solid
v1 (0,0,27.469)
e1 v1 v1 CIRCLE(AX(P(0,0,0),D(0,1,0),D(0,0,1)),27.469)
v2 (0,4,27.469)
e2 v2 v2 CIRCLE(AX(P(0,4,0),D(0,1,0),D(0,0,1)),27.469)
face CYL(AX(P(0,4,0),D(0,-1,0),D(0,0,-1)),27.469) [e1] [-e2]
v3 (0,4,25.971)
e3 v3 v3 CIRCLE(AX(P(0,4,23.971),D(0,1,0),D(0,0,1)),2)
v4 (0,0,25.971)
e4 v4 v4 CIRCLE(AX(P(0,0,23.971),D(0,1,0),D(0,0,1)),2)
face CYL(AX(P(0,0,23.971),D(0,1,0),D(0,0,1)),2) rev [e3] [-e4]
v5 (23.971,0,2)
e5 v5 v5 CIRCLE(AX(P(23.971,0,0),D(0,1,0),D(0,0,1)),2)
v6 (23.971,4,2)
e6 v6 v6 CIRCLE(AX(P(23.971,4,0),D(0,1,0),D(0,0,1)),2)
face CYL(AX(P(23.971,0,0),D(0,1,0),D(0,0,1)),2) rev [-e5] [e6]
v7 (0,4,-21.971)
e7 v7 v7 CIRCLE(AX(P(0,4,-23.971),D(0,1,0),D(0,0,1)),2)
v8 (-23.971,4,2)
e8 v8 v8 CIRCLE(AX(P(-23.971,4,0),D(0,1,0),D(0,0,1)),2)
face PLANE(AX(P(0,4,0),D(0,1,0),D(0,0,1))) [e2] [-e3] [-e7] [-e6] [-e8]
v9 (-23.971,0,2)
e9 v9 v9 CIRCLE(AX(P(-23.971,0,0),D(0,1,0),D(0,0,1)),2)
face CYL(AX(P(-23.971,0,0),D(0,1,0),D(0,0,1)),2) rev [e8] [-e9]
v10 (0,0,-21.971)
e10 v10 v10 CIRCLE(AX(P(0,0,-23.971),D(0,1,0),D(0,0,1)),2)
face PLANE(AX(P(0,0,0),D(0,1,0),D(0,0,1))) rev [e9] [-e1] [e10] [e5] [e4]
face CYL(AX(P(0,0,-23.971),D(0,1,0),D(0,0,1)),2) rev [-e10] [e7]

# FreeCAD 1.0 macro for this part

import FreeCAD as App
import Part
import Sketcher
Q = App.Units.Quantity

doc = App.newDocument("Part")
body = doc.addObject("PartDesign::Body", "Body")

# Sketch on XZ plane
sketch1 = body.newObject("Sketcher::SketchObject", "Sketch")
sketch1.AttachmentSupport = (doc.getObject("XZ_Plane"), [""])
sketch1.MapMode = "FlatFace"
sketch1.addGeometry(Part.Circle(App.Vector(0, 0, 0), App.Vector(0, 0, 1), 27), False)
sketch1.addConstraint([
    Sketcher.Constraint("Coincident", 0, 3, -1, 1),
    Sketcher.Constraint("Diameter", 0, Q("54.938 mm")),
])
pad1 = body.newObject("PartDesign::Pad", "Pad")
pad1.Profile = sketch1
pad1.Length = 4
pad1.Reversed = True

# Sketch on XZ plane
sketch2 = body.newObject("Sketcher::SketchObject", "Sketch001")
sketch2.AttachmentSupport = (doc.getObject("XZ_Plane"), [""])
sketch2.MapMode = "FlatFace"
sketch2.AttachmentOffset = App.Placement(App.Vector(0, 0, -4), App.Rotation())
sketch2.addGeometry([
    Part.Circle(App.Vector(-24, 0, 0), App.Vector(0, 0, 1), 2),
    Part.Circle(App.Vector(0, -24, 0), App.Vector(0, 0, 1), 2),
    Part.Circle(App.Vector(24, 0, 0), App.Vector(0, 0, 1), 2),
    Part.Circle(App.Vector(0, 24, 0), App.Vector(0, 0, 1), 2),
], False)
sketch2.addConstraint([
    Sketcher.Constraint("Equal", 0, 1),
    Sketcher.Constraint("Equal", 1, 2),
    Sketcher.Constraint("Equal", 2, 3),
    Sketcher.Constraint("Symmetric", 0, 3, 2, 3, -1, 1),
    Sketcher.Constraint("Symmetric", 1, 3, 3, 3, -1, 1),
    Sketcher.Constraint("PointOnObject", 0, 3, -1),
    Sketcher.Constraint("PointOnObject", 1, 3, -2),
    Sketcher.Constraint("Diameter", 0, Q("4 mm")),
    Sketcher.Constraint("DistanceX", 0, 3, -1, 1, Q("23.971 mm")),
    Sketcher.Constraint("DistanceY", 1, 3, -1, 1, Q("23.971 mm")),
])
pocket1 = body.newObject("PartDesign::Pocket", "Pocket")
pocket1.Profile = sketch2
pocket1.Type = "ThroughAll"
pocket1.Reversed = True

doc.recompute()
